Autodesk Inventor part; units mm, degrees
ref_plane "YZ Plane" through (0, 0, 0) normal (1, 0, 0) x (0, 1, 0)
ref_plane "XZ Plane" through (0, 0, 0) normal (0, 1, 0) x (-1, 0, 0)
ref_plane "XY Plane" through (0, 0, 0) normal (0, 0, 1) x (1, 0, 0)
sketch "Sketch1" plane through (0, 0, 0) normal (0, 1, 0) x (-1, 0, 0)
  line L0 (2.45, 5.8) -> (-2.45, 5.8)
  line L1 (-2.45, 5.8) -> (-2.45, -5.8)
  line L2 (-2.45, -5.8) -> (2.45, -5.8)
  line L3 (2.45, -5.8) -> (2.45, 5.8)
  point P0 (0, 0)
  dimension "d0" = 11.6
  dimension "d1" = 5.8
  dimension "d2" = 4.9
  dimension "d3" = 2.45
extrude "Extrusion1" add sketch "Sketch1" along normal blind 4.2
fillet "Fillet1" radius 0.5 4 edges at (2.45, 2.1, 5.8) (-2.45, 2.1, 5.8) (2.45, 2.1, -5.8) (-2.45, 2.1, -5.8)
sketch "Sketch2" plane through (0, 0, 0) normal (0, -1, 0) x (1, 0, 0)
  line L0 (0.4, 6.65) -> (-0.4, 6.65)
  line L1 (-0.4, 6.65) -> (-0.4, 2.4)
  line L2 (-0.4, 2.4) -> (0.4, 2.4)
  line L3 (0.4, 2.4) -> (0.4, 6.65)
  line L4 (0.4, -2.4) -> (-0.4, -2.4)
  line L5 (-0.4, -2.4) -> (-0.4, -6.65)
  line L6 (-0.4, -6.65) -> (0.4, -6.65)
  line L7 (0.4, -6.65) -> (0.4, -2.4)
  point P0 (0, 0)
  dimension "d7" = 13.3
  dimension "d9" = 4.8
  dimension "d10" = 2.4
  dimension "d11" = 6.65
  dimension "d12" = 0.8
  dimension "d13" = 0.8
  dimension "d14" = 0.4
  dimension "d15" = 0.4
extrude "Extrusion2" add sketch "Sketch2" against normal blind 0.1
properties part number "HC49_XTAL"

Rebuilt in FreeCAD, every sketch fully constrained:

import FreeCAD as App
import Part
import Sketcher
from FreeCAD import Vector


def edges_at(feature, points):
    """Names of the edges that pass closest to the given points."""
    edges = feature.Shape.Edges
    near = lambda p: min(range(len(edges)), key=lambda i: edges[i].distToShape(Part.Vertex(*p))[0])
    return sorted({f"Edge{near(p) + 1}" for p in points})


def add_polygon(sketch, points):
    """Adds a closed chain of lines whose ends are joined by coincident constraints."""
    first, n = sketch.GeometryCount, len(points)
    for a, b in zip(points, points[1:] + points[:1]):
        sketch.addGeometry(Part.LineSegment(App.Vector(*a, 0), App.Vector(*b, 0)), False)
    for i in range(n):
        sketch.addConstraint(Sketcher.Constraint("Coincident", first + i, 2, first + (i + 1) % n, 1))

doc = App.newDocument("Part")
params = doc.addObject("Spreadsheet::Sheet", "Params")
for row, (alias, value) in enumerate([
    ("sketch1_width", "4.9 mm"),
    ("sketch1_height", "11.6 mm"),
    ("pad1_length", "4.2 mm"),
    ("fillet_radius", "0.5 mm"),
    ("sketch2_width", "0.8 mm"),
    ("pad2_length", "0.1 mm"),
], start=1):
    params.set(f"A{row}", alias)
    params.set(f"B{row}", "=" + value)
    params.setAlias(f"B{row}", alias)

body = doc.addObject("PartDesign::Body", "Body")

# Sketch on XZ plane
sketch1 = doc.addObject("Sketcher::SketchObject", "Sketch")
body.addObject(sketch1)
sketch1.AttachmentSupport = (doc.XZ_Plane, [""])
sketch1.MapMode = "FlatFace"
add_polygon(sketch1, [(-2.5, -5.8), (-2.5, 5.8), (2.5, 5.8), (2.5, -5.8)])  # lines 0-3
sketch1.addConstraint(Sketcher.Constraint("Vertical", 0))
sketch1.addConstraint(Sketcher.Constraint("Horizontal", 1))
sketch1.addConstraint(Sketcher.Constraint("Vertical", 2))
sketch1.addConstraint(Sketcher.Constraint("Horizontal", 3))
sketch1.addConstraint(Sketcher.Constraint("Symmetric", 0, 2, 2, 2, -1, 1))
sketch1.addConstraint(Sketcher.Constraint("DistanceX", 1, 1, 1, 2, 4.9))
sketch1.addConstraint(Sketcher.Constraint("DistanceY", 0, 1, 0, 2, 11.6))
sketch1.setExpression("Constraints[9]", "Params.sketch1_width")
sketch1.setExpression("Constraints[10]", "Params.sketch1_height")
pad1 = doc.addObject("PartDesign::Pad", "Pad")
body.addObject(pad1)
pad1.Profile = sketch1
pad1.setExpression("Length", "Params.pad1_length")
pad1.Reversed = True
doc.recompute()

fillet = doc.addObject("PartDesign::Fillet", "Fillet")
body.addObject(fillet)
fillet.Base = (pad1, edges_at(pad1, [
    (2.45, 2.1, 5.8),
    (-2.45, 2.1, 5.8),
    (2.45, 2.1, -5.8),
    (-2.45, 2.1, -5.8),
]))
fillet.setExpression("Radius", "Params.fillet_radius")

# Sketch on XZ plane
sketch2 = doc.addObject("Sketcher::SketchObject", "Sketch001")
body.addObject(sketch2)
sketch2.AttachmentSupport = (doc.XZ_Plane, [""])
sketch2.MapMode = "FlatFace"
add_polygon(sketch2, [(0.4, 2.4), (0.4, 6.7), (-0.4, 6.7), (-0.4, 2.4)])  # lines 0-3
add_polygon(sketch2, [(0.4, -6.7), (0.4, -2.4), (-0.4, -2.4), (-0.4, -6.7)])  # lines 4-7
sketch2.addConstraint(Sketcher.Constraint("Vertical", 0))
sketch2.addConstraint(Sketcher.Constraint("Horizontal", 1))
sketch2.addConstraint(Sketcher.Constraint("Vertical", 2))
sketch2.addConstraint(Sketcher.Constraint("Horizontal", 3))
sketch2.addConstraint(Sketcher.Constraint("Vertical", 4))
sketch2.addConstraint(Sketcher.Constraint("Horizontal", 5))
sketch2.addConstraint(Sketcher.Constraint("Vertical", 6))
sketch2.addConstraint(Sketcher.Constraint("Horizontal", 7))
sketch2.addConstraint(Sketcher.Constraint("Symmetric", 2, 2, 4, 2, -1, 1))
sketch2.addConstraint(Sketcher.Constraint("Symmetric", 0, 2, 6, 2, -1, 1))
sketch2.addConstraint(Sketcher.Constraint("Vertical", 3, 2, 4, 2))
sketch2.addConstraint(Sketcher.Constraint("DistanceX", 1, 2, 1, 1, 0.8))
sketch2.addConstraint(Sketcher.Constraint("DistanceY", -1, 1, 2, 2, 2.4))
sketch2.addConstraint(Sketcher.Constraint("DistanceY", 6, 2, 1, 2, 13.3))
sketch2.setExpression("Constraints[19]", "Params.sketch2_width")
pad2 = doc.addObject("PartDesign::Pad", "Pad001")
body.addObject(pad2)
pad2.Profile = sketch2
pad2.setExpression("Length", "Params.pad2_length")
pad2.Reversed = True

doc.recompute()
